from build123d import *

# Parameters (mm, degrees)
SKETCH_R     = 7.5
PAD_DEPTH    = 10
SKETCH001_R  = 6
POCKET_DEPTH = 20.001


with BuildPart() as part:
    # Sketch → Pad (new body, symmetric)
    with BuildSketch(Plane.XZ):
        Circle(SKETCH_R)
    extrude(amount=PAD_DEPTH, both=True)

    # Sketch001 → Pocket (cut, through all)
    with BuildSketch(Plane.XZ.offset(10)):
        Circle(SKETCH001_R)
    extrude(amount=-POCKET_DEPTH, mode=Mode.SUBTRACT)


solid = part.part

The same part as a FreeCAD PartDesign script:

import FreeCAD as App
import Part
import Sketcher
from FreeCAD import Vector
Q = App.Units.Quantity

doc = App.newDocument("Part")
params = doc.addObject("Spreadsheet::Sheet", "Params")
for row, (alias, value) in enumerate([
    ("sketch1_diameter", "15 mm"),
    ("pad1_length", "20 mm"),
    ("sketch2_diameter", "12 mm"),
], start=1):
    params.set(f"A{row}", alias)
    params.set(f"B{row}", "=" + value)
    params.setAlias(f"B{row}", alias)

body = doc.addObject("PartDesign::Body", "Body")

sketch1 = body.newObject("Sketcher::SketchObject", "Sketch")
sketch1.AttachmentSupport = (doc.getObject("XZ_Plane"), [""])
sketch1.MapMode = "FlatFace"
sketch1.addGeometry(Part.Circle(Vector(0, 0, 0), Vector(0, 0, 1), 8), False)
sketch1.addConstraint([
    Sketcher.Constraint("Coincident", 0, 3, -1, 1),
    Sketcher.Constraint("Diameter", 0, Q("15 mm")),
])
sketch1.setExpression("Constraints[1]", "Params.sketch1_diameter")
pad1 = body.newObject("PartDesign::Pad", "Pad")
pad1.Profile = sketch1
pad1.setExpression("Length", "Params.pad1_length")
pad1.Midplane = True

sketch2 = body.newObject("Sketcher::SketchObject", "Sketch001")
sketch2.AttachmentSupport = (doc.getObject("XZ_Plane"), [""])
sketch2.MapMode = "FlatFace"
sketch2.AttachmentOffset = App.Placement(Vector(0, 0, 10), App.Rotation())
sketch2.addGeometry(Part.Circle(Vector(0, 0, 0), Vector(0, 0, 1), 6), False)
sketch2.addConstraint([
    Sketcher.Constraint("Coincident", 0, 3, -1, 1),
    Sketcher.Constraint("Diameter", 0, Q("12 mm")),
])
sketch2.setExpression("Constraints[1]", "Params.sketch2_diameter")
pocket1 = body.newObject("PartDesign::Pocket", "Pocket")
pocket1.Profile = sketch2
pocket1.Type = "ThroughAll"

doc.recompute()
